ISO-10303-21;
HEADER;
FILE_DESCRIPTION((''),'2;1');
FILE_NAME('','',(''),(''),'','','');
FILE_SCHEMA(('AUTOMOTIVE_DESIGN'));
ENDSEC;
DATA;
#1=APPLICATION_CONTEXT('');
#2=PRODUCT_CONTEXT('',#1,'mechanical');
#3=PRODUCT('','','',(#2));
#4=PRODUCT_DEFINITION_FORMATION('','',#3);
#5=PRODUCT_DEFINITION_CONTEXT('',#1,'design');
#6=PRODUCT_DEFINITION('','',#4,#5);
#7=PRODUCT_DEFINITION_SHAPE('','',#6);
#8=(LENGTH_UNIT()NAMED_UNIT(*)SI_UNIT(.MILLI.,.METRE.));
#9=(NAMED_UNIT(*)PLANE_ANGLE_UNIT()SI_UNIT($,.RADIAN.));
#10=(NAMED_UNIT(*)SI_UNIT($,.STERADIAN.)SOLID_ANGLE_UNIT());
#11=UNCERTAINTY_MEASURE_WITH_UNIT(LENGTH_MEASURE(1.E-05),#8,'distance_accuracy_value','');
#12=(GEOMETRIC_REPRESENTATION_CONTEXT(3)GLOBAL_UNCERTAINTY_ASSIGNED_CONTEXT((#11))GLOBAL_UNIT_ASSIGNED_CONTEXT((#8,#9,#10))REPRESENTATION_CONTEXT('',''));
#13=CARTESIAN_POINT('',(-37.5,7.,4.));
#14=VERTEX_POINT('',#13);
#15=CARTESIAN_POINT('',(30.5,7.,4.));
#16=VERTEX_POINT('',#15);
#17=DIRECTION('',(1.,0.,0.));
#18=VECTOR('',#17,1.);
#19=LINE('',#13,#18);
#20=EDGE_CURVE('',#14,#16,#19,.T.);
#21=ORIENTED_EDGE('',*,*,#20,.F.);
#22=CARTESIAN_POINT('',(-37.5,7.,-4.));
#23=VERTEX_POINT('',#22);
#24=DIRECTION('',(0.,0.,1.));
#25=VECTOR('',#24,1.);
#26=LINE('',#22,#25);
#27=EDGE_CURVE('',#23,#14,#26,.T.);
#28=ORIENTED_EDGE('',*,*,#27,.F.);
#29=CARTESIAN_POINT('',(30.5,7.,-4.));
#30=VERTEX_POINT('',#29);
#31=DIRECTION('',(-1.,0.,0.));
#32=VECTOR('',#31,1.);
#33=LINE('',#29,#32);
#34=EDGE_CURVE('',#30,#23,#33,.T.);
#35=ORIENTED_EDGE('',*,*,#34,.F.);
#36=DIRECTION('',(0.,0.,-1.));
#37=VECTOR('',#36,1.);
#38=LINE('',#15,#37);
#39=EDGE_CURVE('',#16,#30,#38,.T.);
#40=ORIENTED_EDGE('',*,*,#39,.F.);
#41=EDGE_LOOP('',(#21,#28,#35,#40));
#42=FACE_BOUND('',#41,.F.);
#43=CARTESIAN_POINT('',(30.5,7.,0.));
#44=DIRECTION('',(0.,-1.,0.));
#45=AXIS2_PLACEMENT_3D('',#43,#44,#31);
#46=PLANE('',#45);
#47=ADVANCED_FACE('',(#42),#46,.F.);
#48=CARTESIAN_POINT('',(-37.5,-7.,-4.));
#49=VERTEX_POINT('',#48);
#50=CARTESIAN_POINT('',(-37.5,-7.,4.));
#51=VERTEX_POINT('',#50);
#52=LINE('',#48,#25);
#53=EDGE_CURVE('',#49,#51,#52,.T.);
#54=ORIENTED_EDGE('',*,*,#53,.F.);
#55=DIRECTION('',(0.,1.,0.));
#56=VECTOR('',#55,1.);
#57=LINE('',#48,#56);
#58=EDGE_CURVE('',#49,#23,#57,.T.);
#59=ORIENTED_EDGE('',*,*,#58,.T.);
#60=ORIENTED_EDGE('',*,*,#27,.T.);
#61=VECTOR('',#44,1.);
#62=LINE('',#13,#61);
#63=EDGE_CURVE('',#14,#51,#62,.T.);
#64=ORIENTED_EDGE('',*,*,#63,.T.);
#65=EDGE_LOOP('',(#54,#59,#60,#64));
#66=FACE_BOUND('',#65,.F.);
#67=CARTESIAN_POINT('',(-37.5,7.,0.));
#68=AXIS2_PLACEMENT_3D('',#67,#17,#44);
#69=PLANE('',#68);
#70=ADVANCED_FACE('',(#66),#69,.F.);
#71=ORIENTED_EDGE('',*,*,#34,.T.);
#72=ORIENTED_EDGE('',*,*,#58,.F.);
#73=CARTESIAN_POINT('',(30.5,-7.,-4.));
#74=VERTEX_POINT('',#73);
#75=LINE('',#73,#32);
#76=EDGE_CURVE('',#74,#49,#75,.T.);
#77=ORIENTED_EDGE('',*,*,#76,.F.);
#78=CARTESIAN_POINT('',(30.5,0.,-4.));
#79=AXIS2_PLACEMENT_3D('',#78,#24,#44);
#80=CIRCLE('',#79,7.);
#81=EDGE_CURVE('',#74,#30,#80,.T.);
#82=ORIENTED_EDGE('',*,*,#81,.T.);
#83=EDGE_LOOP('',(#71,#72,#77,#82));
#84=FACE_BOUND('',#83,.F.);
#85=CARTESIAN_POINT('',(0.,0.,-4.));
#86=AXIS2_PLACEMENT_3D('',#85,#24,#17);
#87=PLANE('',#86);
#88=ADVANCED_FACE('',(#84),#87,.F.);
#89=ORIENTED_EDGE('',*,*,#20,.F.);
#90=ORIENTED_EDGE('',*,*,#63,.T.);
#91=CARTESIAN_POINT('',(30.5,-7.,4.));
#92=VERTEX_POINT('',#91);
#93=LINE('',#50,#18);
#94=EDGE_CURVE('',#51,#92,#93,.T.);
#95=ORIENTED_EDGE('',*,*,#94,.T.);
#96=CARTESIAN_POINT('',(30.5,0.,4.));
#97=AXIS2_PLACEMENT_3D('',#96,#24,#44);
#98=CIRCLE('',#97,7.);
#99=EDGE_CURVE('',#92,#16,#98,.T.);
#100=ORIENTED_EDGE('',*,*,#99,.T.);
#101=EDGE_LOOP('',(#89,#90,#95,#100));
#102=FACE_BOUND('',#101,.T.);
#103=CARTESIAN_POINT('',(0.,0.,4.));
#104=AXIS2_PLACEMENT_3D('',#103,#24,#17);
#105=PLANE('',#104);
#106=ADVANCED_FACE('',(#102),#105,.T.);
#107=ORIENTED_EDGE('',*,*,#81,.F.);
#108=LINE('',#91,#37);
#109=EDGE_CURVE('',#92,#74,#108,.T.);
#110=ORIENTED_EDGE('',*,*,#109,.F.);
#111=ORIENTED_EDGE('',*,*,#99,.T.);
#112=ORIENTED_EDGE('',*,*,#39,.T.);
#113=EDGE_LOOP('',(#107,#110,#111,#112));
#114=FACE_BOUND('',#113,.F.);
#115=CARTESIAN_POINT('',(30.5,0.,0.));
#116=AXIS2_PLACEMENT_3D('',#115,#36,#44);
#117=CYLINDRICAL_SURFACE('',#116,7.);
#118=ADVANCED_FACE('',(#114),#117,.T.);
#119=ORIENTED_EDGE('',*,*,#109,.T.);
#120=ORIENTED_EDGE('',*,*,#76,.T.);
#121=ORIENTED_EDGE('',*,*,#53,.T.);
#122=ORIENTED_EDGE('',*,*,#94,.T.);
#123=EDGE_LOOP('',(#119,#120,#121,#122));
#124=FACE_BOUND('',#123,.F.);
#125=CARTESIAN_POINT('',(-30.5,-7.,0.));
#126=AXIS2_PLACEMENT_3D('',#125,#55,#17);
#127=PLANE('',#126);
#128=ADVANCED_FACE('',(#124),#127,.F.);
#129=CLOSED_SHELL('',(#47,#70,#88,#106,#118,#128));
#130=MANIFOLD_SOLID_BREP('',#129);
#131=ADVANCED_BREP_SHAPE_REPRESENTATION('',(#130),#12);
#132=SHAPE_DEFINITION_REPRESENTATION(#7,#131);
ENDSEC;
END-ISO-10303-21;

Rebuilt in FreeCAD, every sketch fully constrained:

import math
import FreeCAD as App
import Part
import Sketcher
from FreeCAD import Vector
Q = App.Units.Quantity

doc = App.newDocument("Part")
body = doc.addObject("PartDesign::Body", "Body")

sketch1 = doc.addObject("Sketcher::SketchObject", "Sketch")
body.addObject(sketch1)
sketch1.AttachmentSupport = (doc.XY_Plane, [""])
sketch1.MapMode = "FlatFace"
sketch1.addGeometry(Part.LineSegment(Vector(30, 7, 0), Vector(-38, 7, 0)), False)
sketch1.addGeometry(Part.LineSegment(Vector(-38, 7, 0), Vector(-38, -7, 0)), False)
sketch1.addGeometry(Part.LineSegment(Vector(-38, -7, 0), Vector(30, -7, 0)), False)
sketch1.addGeometry(Part.ArcOfCircle(Part.Circle(Vector(30, 0, 0), Vector(0, 0, 1), 7), math.radians(-90), math.radians(90)), False)
sketch1.addConstraint(Sketcher.Constraint("Coincident", 0, 2, 1, 1))
sketch1.addConstraint(Sketcher.Constraint("Coincident", 1, 2, 2, 1))
sketch1.addConstraint(Sketcher.Constraint("Tangent", 2, 2, 3, 1))
sketch1.addConstraint(Sketcher.Constraint("Tangent", 3, 2, 0, 1))
sketch1.addConstraint(Sketcher.Constraint("Horizontal", 0))
sketch1.addConstraint(Sketcher.Constraint("Vertical", 1))
sketch1.addConstraint(Sketcher.Constraint("Horizontal", 2))
sketch1.addConstraint(Sketcher.Constraint("PointOnObject", 3, 3, -1))
sketch1.addConstraint(Sketcher.Constraint("Radius", 3, Q("7 mm")))
sketch1.addConstraint(Sketcher.Constraint("DistanceX", 0, 2, 0, 1, Q("68 mm")))
sketch1.addConstraint(Sketcher.Constraint("DistanceX", -1, 1, 3, 3, Q("30.5 mm")))
pad1 = doc.addObject("PartDesign::Pad", "Pad")
body.addObject(pad1)
pad1.Profile = sketch1
pad1.Length = 8
pad1.Midplane = True

doc.recompute()
